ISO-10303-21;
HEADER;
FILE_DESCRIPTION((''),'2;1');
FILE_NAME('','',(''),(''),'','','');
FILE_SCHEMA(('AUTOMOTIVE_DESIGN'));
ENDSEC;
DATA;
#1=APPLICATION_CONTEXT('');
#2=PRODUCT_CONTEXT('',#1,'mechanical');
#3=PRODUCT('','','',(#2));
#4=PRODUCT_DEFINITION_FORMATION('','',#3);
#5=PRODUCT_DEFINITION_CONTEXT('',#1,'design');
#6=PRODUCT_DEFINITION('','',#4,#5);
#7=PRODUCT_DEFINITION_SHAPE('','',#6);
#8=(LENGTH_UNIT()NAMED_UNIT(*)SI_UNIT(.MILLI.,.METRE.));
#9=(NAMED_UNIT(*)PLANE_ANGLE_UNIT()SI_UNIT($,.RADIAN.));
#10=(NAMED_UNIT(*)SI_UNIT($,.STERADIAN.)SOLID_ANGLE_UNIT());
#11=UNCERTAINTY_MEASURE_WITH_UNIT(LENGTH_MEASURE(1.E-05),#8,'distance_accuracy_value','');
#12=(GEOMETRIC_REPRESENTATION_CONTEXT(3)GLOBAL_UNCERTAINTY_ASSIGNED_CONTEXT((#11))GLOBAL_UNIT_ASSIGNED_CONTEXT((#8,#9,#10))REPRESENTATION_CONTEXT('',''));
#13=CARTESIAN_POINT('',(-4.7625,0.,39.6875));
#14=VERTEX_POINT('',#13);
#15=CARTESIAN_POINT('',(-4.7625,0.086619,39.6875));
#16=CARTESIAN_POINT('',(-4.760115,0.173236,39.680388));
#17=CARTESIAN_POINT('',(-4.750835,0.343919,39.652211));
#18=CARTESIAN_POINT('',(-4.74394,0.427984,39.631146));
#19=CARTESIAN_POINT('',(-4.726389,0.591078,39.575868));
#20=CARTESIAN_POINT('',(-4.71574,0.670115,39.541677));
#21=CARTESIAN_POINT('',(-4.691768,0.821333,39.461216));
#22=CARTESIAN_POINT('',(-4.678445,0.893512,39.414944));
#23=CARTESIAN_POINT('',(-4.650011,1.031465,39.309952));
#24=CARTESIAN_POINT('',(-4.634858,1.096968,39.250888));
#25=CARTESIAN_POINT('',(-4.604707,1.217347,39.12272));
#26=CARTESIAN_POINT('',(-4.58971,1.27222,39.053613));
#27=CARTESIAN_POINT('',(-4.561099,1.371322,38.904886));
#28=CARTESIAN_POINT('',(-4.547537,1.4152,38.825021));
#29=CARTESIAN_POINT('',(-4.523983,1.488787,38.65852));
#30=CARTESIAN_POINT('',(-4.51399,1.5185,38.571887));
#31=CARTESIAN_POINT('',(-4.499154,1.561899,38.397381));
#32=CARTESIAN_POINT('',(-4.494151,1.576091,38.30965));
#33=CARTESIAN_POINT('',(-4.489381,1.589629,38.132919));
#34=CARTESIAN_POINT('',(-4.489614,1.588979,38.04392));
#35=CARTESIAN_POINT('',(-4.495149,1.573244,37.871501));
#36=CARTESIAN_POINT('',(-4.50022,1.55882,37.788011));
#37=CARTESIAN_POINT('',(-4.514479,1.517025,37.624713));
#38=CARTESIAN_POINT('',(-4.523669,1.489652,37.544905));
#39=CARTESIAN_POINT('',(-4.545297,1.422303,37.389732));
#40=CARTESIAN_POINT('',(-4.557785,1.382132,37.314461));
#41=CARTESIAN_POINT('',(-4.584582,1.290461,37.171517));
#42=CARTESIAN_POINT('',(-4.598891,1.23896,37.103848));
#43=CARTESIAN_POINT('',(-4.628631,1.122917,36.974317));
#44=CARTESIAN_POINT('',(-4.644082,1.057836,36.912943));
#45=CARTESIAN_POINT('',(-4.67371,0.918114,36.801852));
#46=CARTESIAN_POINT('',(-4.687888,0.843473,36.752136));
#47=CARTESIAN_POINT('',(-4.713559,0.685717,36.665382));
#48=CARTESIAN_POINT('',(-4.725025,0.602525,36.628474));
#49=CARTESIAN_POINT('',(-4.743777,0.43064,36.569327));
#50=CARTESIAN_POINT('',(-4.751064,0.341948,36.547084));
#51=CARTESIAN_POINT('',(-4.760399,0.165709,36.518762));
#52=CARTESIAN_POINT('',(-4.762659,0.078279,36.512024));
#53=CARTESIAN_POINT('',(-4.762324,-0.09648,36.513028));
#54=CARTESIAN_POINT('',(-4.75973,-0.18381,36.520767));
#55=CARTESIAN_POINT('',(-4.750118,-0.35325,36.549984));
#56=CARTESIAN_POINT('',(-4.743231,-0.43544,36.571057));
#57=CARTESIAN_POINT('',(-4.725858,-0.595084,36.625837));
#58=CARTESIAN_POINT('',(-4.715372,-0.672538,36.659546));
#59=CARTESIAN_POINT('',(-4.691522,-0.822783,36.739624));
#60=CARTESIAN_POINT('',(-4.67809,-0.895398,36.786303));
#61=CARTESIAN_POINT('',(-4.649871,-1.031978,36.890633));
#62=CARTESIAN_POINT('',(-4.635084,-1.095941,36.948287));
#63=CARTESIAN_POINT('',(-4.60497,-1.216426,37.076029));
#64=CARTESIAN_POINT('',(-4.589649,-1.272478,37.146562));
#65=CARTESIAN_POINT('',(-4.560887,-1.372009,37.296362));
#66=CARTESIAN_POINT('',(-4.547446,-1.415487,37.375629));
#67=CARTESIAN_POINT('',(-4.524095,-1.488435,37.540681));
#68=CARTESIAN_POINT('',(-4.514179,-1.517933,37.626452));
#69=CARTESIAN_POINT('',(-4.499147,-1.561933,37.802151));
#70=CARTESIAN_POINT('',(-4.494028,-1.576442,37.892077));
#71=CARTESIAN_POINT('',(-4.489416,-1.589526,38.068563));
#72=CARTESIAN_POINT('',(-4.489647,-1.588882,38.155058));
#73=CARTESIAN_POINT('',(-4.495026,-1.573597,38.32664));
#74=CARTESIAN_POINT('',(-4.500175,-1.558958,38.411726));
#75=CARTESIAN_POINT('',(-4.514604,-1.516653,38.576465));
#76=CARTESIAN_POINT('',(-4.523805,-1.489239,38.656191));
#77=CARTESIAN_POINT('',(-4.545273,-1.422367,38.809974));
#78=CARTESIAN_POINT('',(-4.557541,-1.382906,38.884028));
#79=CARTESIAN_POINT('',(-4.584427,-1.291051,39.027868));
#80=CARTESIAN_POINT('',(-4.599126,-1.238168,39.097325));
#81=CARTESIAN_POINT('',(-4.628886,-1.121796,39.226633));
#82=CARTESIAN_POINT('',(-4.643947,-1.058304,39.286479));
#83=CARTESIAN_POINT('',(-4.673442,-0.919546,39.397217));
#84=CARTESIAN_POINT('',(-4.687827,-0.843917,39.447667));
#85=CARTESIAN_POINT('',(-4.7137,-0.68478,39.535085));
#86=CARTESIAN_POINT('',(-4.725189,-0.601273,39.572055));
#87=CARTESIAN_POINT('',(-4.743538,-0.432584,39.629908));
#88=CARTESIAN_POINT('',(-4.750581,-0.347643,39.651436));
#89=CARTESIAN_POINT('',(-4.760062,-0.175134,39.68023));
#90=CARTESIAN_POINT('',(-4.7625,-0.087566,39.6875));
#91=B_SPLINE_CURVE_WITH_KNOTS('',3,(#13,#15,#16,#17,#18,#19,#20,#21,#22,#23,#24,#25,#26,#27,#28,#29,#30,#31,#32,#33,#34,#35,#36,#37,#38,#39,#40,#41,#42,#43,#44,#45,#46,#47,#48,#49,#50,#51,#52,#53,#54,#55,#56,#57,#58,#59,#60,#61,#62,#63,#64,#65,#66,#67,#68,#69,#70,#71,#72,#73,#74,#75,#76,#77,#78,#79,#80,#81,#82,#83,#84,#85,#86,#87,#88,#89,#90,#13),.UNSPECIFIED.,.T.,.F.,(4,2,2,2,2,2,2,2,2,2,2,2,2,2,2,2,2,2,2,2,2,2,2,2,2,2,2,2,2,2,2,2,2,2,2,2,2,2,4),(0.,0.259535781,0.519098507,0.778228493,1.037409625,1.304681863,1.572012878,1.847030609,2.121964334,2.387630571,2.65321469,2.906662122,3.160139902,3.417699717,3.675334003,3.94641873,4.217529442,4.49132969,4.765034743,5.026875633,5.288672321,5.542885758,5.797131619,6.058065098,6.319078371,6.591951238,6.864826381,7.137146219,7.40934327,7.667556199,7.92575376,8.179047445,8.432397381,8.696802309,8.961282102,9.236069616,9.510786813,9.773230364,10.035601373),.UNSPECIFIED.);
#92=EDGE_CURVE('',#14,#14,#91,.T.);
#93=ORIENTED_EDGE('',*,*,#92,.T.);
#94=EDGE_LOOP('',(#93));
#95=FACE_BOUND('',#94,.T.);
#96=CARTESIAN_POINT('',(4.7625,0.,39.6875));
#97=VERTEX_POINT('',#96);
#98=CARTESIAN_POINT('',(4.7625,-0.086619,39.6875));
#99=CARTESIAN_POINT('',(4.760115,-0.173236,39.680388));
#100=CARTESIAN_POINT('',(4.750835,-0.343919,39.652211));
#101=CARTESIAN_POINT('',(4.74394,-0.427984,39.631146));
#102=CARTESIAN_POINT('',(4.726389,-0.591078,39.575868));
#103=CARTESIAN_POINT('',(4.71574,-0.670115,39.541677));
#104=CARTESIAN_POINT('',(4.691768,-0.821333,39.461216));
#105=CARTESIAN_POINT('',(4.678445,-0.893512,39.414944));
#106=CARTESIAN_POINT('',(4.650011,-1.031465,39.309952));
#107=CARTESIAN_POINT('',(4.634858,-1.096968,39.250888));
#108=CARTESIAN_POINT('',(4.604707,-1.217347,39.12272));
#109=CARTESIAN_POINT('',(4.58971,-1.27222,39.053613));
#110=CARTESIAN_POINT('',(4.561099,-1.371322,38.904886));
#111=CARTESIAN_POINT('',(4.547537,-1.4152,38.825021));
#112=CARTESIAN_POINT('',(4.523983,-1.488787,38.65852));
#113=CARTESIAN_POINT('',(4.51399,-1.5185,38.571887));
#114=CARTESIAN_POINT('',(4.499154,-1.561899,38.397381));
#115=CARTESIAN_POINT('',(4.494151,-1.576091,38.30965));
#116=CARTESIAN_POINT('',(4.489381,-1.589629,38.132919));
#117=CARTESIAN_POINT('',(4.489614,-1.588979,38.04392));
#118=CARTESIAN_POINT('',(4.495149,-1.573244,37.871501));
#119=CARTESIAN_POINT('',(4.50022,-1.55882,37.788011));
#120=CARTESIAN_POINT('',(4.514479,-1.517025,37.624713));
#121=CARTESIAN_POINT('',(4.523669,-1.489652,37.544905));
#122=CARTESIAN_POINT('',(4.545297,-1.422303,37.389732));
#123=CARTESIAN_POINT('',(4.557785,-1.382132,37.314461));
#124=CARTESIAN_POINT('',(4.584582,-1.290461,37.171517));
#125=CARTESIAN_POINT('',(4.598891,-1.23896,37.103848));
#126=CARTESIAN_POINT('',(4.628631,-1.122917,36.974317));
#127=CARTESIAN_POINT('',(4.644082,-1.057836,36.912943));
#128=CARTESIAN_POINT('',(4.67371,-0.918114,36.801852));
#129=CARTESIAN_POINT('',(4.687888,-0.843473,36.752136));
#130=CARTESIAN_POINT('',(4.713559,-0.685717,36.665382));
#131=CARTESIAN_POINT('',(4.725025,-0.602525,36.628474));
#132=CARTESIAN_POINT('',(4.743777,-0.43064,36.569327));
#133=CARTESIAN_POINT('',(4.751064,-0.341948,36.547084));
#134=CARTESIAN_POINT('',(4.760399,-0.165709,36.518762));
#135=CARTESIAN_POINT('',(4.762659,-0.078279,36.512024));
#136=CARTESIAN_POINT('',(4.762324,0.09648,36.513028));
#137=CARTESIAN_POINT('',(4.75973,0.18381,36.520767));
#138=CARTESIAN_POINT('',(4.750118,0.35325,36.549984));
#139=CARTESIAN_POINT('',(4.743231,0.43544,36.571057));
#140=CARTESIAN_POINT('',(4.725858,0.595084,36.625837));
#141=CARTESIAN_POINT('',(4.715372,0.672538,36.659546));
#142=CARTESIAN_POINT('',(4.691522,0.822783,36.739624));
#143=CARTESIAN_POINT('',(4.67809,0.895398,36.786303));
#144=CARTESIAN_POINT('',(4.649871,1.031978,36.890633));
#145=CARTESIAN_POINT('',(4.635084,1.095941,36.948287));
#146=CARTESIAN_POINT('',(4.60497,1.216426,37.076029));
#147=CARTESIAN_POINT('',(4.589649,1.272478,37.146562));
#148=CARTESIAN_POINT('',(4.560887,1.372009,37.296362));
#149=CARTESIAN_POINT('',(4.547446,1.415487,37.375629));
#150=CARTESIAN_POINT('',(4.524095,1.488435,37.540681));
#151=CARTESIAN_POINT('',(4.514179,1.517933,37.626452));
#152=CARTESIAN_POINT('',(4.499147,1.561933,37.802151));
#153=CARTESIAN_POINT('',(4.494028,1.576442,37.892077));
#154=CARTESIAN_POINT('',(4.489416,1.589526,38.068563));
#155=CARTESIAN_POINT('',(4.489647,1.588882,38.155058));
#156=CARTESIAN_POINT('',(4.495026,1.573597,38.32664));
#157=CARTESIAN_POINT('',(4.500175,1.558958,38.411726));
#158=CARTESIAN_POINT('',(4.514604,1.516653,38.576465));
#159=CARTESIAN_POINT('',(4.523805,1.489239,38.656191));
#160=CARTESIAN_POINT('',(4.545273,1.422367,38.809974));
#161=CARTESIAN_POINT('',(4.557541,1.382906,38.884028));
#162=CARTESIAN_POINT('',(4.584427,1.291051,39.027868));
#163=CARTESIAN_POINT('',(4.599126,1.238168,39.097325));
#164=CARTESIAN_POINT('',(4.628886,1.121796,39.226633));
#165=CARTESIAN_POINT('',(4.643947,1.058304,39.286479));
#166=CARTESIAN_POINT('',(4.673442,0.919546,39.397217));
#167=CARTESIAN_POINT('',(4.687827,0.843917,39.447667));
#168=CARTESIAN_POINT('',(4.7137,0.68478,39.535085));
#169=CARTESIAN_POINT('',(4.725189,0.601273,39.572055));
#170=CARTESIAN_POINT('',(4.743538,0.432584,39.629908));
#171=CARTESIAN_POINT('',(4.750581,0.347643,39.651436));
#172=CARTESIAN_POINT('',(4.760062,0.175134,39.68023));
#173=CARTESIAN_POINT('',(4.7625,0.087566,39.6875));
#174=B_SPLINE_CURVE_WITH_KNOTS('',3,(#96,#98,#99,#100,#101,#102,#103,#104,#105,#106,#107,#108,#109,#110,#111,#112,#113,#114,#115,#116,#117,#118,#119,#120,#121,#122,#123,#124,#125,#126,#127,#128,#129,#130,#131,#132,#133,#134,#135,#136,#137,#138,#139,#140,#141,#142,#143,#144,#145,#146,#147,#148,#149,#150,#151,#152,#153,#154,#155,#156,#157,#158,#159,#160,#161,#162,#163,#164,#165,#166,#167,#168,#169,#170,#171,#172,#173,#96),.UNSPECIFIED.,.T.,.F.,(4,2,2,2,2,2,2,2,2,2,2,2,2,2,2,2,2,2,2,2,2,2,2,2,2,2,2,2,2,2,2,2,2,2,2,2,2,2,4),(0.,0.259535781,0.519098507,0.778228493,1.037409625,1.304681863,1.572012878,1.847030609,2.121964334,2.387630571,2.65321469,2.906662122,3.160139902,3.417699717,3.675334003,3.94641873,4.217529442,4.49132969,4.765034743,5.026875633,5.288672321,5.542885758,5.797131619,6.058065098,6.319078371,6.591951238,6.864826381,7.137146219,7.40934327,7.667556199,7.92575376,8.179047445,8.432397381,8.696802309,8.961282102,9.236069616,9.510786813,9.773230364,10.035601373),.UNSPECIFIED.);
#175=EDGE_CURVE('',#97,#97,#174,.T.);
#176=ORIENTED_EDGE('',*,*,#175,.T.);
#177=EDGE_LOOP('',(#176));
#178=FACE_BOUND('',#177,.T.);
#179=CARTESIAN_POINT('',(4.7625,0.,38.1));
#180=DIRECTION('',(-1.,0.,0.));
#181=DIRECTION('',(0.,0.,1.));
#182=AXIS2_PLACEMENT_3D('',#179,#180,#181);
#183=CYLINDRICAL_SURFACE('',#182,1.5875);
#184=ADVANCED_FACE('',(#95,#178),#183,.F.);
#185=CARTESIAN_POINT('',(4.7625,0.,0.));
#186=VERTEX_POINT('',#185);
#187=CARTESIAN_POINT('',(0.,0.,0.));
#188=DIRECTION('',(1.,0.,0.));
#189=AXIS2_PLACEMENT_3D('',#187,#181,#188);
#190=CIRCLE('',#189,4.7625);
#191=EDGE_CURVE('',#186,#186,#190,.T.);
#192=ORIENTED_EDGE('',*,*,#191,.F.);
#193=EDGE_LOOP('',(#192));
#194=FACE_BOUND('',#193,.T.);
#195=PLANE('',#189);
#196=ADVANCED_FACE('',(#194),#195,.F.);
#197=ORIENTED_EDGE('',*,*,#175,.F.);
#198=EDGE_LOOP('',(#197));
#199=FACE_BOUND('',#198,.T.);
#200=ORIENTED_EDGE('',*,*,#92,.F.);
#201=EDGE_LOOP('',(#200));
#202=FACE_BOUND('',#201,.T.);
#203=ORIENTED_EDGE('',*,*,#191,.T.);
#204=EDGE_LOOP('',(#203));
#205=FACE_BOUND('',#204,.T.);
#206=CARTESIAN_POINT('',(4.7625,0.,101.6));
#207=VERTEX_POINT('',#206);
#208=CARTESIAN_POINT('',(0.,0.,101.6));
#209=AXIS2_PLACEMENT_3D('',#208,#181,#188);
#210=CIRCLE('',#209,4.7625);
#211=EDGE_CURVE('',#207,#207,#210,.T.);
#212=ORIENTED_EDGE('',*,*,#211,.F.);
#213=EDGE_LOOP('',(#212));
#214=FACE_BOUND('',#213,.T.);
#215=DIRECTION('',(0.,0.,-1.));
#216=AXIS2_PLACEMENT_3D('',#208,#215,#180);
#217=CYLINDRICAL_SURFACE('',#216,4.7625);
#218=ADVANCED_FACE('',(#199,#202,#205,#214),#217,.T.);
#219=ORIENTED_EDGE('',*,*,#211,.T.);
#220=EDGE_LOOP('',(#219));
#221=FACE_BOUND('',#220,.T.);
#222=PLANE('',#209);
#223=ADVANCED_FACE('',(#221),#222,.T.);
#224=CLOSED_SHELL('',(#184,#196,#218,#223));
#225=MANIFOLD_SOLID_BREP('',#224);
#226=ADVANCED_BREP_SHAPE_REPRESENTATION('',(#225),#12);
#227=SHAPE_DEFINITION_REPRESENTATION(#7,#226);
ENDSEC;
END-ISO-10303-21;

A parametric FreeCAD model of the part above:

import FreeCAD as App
import Part
import Sketcher
Q = App.Units.Quantity

doc = App.newDocument("Part")
params = doc.addObject("Spreadsheet::Sheet", "Params")
for row, (alias, value) in enumerate([
    ("sketch1_diameter", "0.375 in"),
    ("pad1_length", "4 in"),
    ("sketch2_diameter", "0.125 in"),
], start=1):
    params.set(f"A{row}", alias)
    params.set(f"B{row}", "=" + value)
    params.setAlias(f"B{row}", alias)

body = doc.addObject("PartDesign::Body", "Body")

# Sketch on XY plane
sketch1 = doc.addObject("Sketcher::SketchObject", "Sketch")
body.addObject(sketch1)
sketch1.AttachmentSupport = (doc.XY_Plane, [""])
sketch1.MapMode = "FlatFace"
sketch1.addGeometry(Part.Circle(App.Vector(0, 0, 0), App.Vector(0, 0, 1), 4.8), False)
sketch1.addConstraint(Sketcher.Constraint("Coincident", 0, 3, -1, 1))
sketch1.addConstraint(Sketcher.Constraint("Diameter", 0, Q("0.375 in")))
sketch1.setExpression("Constraints[1]", "Params.sketch1_diameter")
pad1 = doc.addObject("PartDesign::Pad", "Pad")
body.addObject(pad1)
pad1.Profile = sketch1
pad1.setExpression("Length", "Params.pad1_length")

# Sketch on YZ plane
sketch2 = doc.addObject("Sketcher::SketchObject", "Sketch001")
body.addObject(sketch2)
sketch2.AttachmentSupport = (doc.YZ_Plane, [""])
sketch2.MapMode = "FlatFace"
sketch2.addGeometry(Part.Circle(App.Vector(0, 38.1, 0), App.Vector(0, 0, 1), 1.6), False)
sketch2.addConstraint(Sketcher.Constraint("PointOnObject", 0, 3, -2))
sketch2.addConstraint(Sketcher.Constraint("Diameter", 0, Q("0.125 in")))
sketch2.addConstraint(Sketcher.Constraint("DistanceY", -1, 1, 0, 3, Q("1.5 in")))
sketch2.setExpression("Constraints[1]", "Params.sketch2_diameter")
pocket1 = doc.addObject("PartDesign::Pocket", "Pocket")
body.addObject(pocket1)
pocket1.Profile = sketch2
pocket1.Type = "ThroughAll"
pocket1.Midplane = True

doc.recompute()
